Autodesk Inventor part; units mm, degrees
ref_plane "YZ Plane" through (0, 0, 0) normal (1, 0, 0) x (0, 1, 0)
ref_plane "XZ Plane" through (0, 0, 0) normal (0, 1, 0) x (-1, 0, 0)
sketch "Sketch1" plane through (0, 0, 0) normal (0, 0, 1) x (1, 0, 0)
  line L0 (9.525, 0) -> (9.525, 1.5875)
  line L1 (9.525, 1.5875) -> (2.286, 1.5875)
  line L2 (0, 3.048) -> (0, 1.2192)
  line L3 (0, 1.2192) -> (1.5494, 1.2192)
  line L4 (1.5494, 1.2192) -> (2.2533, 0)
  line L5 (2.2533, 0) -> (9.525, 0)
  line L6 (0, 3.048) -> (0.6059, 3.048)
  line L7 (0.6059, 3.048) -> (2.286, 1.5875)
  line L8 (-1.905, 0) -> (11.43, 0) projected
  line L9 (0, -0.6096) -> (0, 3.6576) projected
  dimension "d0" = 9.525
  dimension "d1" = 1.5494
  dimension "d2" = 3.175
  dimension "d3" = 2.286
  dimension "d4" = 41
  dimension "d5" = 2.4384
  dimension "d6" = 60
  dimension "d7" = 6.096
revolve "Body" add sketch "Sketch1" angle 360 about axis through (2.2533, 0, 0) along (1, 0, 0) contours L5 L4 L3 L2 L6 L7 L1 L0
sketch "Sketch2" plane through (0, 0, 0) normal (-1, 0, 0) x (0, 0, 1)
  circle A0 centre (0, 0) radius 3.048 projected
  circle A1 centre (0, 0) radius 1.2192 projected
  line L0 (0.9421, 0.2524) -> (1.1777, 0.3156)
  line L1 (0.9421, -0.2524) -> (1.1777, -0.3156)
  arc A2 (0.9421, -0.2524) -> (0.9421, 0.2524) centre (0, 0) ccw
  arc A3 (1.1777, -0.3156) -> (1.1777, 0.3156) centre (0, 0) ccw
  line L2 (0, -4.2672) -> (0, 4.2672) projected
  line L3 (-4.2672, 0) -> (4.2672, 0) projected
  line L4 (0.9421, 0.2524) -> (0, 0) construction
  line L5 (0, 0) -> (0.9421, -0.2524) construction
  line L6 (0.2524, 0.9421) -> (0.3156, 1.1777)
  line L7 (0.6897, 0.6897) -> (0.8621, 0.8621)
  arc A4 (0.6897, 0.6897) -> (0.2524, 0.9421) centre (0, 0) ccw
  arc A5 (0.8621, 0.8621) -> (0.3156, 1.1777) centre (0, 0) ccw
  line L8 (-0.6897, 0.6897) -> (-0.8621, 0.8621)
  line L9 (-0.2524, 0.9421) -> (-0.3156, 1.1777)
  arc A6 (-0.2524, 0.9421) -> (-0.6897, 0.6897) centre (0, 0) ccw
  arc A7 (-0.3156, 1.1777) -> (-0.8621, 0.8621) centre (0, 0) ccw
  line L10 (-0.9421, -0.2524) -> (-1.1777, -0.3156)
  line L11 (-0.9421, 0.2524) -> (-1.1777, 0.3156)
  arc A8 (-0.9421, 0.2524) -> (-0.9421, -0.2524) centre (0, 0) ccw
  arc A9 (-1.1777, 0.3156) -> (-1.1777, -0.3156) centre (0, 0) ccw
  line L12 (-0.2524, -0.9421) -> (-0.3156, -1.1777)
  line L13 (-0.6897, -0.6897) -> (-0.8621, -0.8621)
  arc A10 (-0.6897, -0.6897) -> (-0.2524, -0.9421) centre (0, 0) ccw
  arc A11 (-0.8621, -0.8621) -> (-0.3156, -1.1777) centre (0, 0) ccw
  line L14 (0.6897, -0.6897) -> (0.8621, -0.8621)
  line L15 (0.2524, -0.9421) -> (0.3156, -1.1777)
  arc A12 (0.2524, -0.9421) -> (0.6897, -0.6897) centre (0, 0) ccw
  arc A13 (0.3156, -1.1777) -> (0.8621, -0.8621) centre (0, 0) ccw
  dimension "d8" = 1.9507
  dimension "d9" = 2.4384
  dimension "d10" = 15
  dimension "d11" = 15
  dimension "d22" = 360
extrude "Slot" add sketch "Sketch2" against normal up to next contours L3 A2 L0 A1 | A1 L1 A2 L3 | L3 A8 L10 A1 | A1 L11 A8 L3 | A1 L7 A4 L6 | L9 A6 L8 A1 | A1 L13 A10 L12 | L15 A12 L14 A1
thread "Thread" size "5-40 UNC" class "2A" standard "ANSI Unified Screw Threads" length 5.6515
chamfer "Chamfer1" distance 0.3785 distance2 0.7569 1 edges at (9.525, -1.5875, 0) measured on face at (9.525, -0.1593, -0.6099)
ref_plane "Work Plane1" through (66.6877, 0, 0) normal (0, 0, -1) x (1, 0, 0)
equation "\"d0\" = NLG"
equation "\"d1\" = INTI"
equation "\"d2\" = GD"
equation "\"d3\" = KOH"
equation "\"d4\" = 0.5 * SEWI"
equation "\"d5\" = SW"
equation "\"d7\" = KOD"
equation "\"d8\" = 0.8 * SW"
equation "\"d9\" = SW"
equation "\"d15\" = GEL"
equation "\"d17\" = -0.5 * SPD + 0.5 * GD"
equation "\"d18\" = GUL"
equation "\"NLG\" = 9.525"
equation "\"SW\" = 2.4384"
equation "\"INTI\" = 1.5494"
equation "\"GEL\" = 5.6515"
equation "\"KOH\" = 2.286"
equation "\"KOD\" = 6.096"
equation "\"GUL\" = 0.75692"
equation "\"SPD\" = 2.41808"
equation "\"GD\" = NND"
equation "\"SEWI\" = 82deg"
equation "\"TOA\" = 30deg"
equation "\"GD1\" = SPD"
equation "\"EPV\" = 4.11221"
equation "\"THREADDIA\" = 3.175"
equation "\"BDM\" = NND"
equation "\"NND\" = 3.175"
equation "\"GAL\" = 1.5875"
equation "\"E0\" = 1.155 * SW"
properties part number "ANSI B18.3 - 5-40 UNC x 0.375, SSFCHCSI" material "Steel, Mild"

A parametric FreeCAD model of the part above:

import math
import FreeCAD as App
import Part
import Sketcher

V = App.Vector
Q = App.Units.Quantity


def edges_at(feature, points):
    """Names of the edges that pass closest to the given points."""
    edges = feature.Shape.Edges
    near = lambda p: min(range(len(edges)), key=lambda i: edges[i].distToShape(Part.Vertex(*p))[0])
    return sorted({f"Edge{near(p) + 1}" for p in points})


def add_polygon(sketch, points):
    """Adds a closed chain of lines whose ends are joined by coincident constraints."""
    first, n = sketch.GeometryCount, len(points)
    for a, b in zip(points, points[1:] + points[:1]):
        sketch.addGeometry(Part.LineSegment(App.Vector(*a, 0), App.Vector(*b, 0)), False)
    for i in range(n):
        sketch.addConstraint(Sketcher.Constraint("Coincident", first + i, 2, first + (i + 1) % n, 1))

doc = App.newDocument("Part")
body = doc.addObject("PartDesign::Body", "Body")

sketch1 = body.newObject("Sketcher::SketchObject", "Sketch")
sketch1.AttachmentSupport = (doc.getObject("XY_Plane"), [""])
sketch1.MapMode = "FlatFace"
add_polygon(sketch1, [(2.3, 0), (9.5, 0), (9.5, 1.6), (2.3, 1.6), (0.6, 3), (0, 3), (0, 1.2), (1.5, 1.2)])
sketch1.addConstraint(Sketcher.Constraint("Horizontal", 0))
sketch1.addConstraint(Sketcher.Constraint("Vertical", 1))
sketch1.addConstraint(Sketcher.Constraint("Horizontal", 2))
sketch1.addConstraint(Sketcher.Constraint("Horizontal", 4))
sketch1.addConstraint(Sketcher.Constraint("Vertical", 5))
sketch1.addConstraint(Sketcher.Constraint("Horizontal", 6))
sketch1.addConstraint(Sketcher.Constraint("PointOnObject", 0, 2, -1))
sketch1.addConstraint(Sketcher.Constraint("PointOnObject", 4, 2, -2))
sketch1.addConstraint(Sketcher.Constraint("Angle", 7, Q("-60.0002 deg")))
sketch1.addConstraint(Sketcher.Constraint("DistanceX", 6, 1, 6, 2, Q("0.061 in")))
sketch1.addConstraint(Sketcher.Constraint("DistanceX", -1, 1, 2, 2, Q("0.09 in")))
sketch1.addConstraint(Sketcher.Constraint("DistanceX", -1, 1, 0, 2, Q("0.375 in")))
sketch1.addConstraint(Sketcher.Constraint("Angle", 3, Q("138.9998 deg")))
sketch1.addConstraint(Sketcher.Constraint("DistanceY", 1, 1, 1, 2, Q("0.0625 in")))
sketch1.addConstraint(Sketcher.Constraint("DistanceY", 5, 2, 5, 1, Q("0.072 in")))
sketch1.addConstraint(Sketcher.Constraint("DistanceY", -1, 1, 3, 2, Q("0.12 in")))
revolution = body.newObject("PartDesign::Revolution", "Revolution")
revolution.Profile = sketch1
revolution.ReferenceAxis = (sketch1, ["H_Axis"])
revolution.Angle = 360

sketch2 = body.newObject("Sketcher::SketchObject", "Sketch001")
sketch2.AttachmentSupport = (doc.getObject("YZ_Plane"), [""])
sketch2.MapMode = "FlatFace"
sketch2.addGeometry(Part.ArcOfCircle(Part.Circle(V(0, 0, 0), V(0, 0, 1), 0.98), math.radians(75), math.radians(105)), False)
sketch2.addGeometry(Part.LineSegment(V(-0.25, 0.94, 0), V(-0.32, 1.18, 0)), False)
sketch2.addGeometry(Part.ArcOfCircle(Part.Circle(V(0, 0, 0), V(0, 0, 1), 1.22), math.radians(75), math.radians(105)), False)
sketch2.addGeometry(Part.LineSegment(V(0.32, 1.18, 0), V(0.25, 0.94, 0)), False)
sketch2.addGeometry(Part.ArcOfCircle(Part.Circle(V(0, 0, 0), V(0, 0, 1), 0.98), math.radians(-105), math.radians(-75)), False)
sketch2.addGeometry(Part.LineSegment(V(0.25, -0.94, 0), V(0.32, -1.18, 0)), False)
sketch2.addGeometry(Part.ArcOfCircle(Part.Circle(V(0, 0, 0), V(0, 0, 1), 1.22), math.radians(-105), math.radians(-75)), False)
sketch2.addGeometry(Part.LineSegment(V(-0.32, -1.18, 0), V(-0.25, -0.94, 0)), False)
sketch2.addGeometry(Part.ArcOfCircle(Part.Circle(V(0, 0, 0), V(0, 0, 1), 1.22), math.radians(15), math.radians(45)), False)
sketch2.addGeometry(Part.LineSegment(V(1.18, 0.32, 0), V(0.94, 0.25, 0)), False)
sketch2.addGeometry(Part.ArcOfCircle(Part.Circle(V(0, 0, 0), V(0, 0, 1), 0.98), math.radians(15), math.radians(45)), False)
sketch2.addGeometry(Part.LineSegment(V(0.69, 0.69, 0), V(0.86, 0.86, 0)), False)
sketch2.addGeometry(Part.LineSegment(V(0.94, -0.25, 0), V(1.18, -0.32, 0)), False)
sketch2.addGeometry(Part.ArcOfCircle(Part.Circle(V(0, 0, 0), V(0, 0, 1), 1.22), math.radians(-45), math.radians(-15)), False)
sketch2.addGeometry(Part.LineSegment(V(0.86, -0.86, 0), V(0.69, -0.69, 0)), False)
sketch2.addGeometry(Part.ArcOfCircle(Part.Circle(V(0, 0, 0), V(0, 0, 1), 0.98), math.radians(-45), math.radians(-15)), False)
sketch2.addGeometry(Part.ArcOfCircle(Part.Circle(V(0, 0, 0), V(0, 0, 1), 1.22), math.radians(-165), math.radians(-135)), False)
sketch2.addGeometry(Part.LineSegment(V(-1.18, -0.32, 0), V(-0.94, -0.25, 0)), False)
sketch2.addGeometry(Part.ArcOfCircle(Part.Circle(V(0, 0, 0), V(0, 0, 1), 0.98), math.radians(-165), math.radians(-135)), False)
sketch2.addGeometry(Part.LineSegment(V(-0.69, -0.69, 0), V(-0.86, -0.86, 0)), False)
sketch2.addGeometry(Part.LineSegment(V(-0.94, 0.25, 0), V(-1.18, 0.32, 0)), False)
sketch2.addGeometry(Part.ArcOfCircle(Part.Circle(V(0, 0, 0), V(0, 0, 1), 1.22), math.radians(135), math.radians(165)), False)
sketch2.addGeometry(Part.LineSegment(V(-0.86, 0.86, 0), V(-0.69, 0.69, 0)), False)
sketch2.addGeometry(Part.ArcOfCircle(Part.Circle(V(0, 0, 0), V(0, 0, 1), 0.98), math.radians(135), math.radians(165)), False)
sketch2.addConstraint(Sketcher.Constraint("Coincident", 0, 2, 1, 1))
sketch2.addConstraint(Sketcher.Constraint("Coincident", 1, 2, 2, 2))
sketch2.addConstraint(Sketcher.Constraint("Coincident", 2, 1, 3, 1))
sketch2.addConstraint(Sketcher.Constraint("Coincident", 3, 2, 0, 1))
sketch2.addConstraint(Sketcher.Constraint("Coincident", 4, 2, 5, 1))
sketch2.addConstraint(Sketcher.Constraint("Coincident", 5, 2, 6, 2))
sketch2.addConstraint(Sketcher.Constraint("Coincident", 6, 1, 7, 1))
sketch2.addConstraint(Sketcher.Constraint("Coincident", 7, 2, 4, 1))
sketch2.addConstraint(Sketcher.Constraint("Coincident", 8, 1, 9, 1))
sketch2.addConstraint(Sketcher.Constraint("Coincident", 9, 2, 10, 1))
sketch2.addConstraint(Sketcher.Constraint("Coincident", 10, 2, 11, 1))
sketch2.addConstraint(Sketcher.Constraint("Coincident", 11, 2, 8, 2))
sketch2.addConstraint(Sketcher.Constraint("Coincident", 12, 2, 13, 2))
sketch2.addConstraint(Sketcher.Constraint("Coincident", 13, 1, 14, 1))
sketch2.addConstraint(Sketcher.Constraint("Coincident", 14, 2, 15, 1))
sketch2.addConstraint(Sketcher.Constraint("Coincident", 15, 2, 12, 1))
sketch2.addConstraint(Sketcher.Constraint("Coincident", 16, 1, 17, 1))
sketch2.addConstraint(Sketcher.Constraint("Coincident", 17, 2, 18, 1))
sketch2.addConstraint(Sketcher.Constraint("Coincident", 18, 2, 19, 1))
sketch2.addConstraint(Sketcher.Constraint("Coincident", 19, 2, 16, 2))
sketch2.addConstraint(Sketcher.Constraint("Coincident", 20, 2, 21, 2))
sketch2.addConstraint(Sketcher.Constraint("Coincident", 21, 1, 22, 1))
sketch2.addConstraint(Sketcher.Constraint("Coincident", 22, 2, 23, 1))
sketch2.addConstraint(Sketcher.Constraint("Coincident", 23, 2, 20, 1))
sketch2.addConstraint(Sketcher.Constraint("Coincident", 0, 3, -1, 1))
sketch2.addConstraint(Sketcher.Constraint("Coincident", 2, 3, -1, 1))
sketch2.addConstraint(Sketcher.Constraint("Coincident", 4, 3, -1, 1))
sketch2.addConstraint(Sketcher.Constraint("Coincident", 6, 3, -1, 1))
sketch2.addConstraint(Sketcher.Constraint("Coincident", 8, 3, -1, 1))
sketch2.addConstraint(Sketcher.Constraint("Coincident", 10, 3, -1, 1))
sketch2.addConstraint(Sketcher.Constraint("Coincident", 13, 3, -1, 1))
sketch2.addConstraint(Sketcher.Constraint("Coincident", 15, 3, -1, 1))
sketch2.addConstraint(Sketcher.Constraint("Coincident", 16, 3, -1, 1))
sketch2.addConstraint(Sketcher.Constraint("Coincident", 18, 3, -1, 1))
sketch2.addConstraint(Sketcher.Constraint("Coincident", 21, 3, -1, 1))
sketch2.addConstraint(Sketcher.Constraint("Coincident", 23, 3, -1, 1))
sketch2.addConstraint(Sketcher.Constraint("Equal", 0, 4))
sketch2.addConstraint(Sketcher.Constraint("Equal", 2, 6))
sketch2.addConstraint(Sketcher.Constraint("Equal", 6, 8))
sketch2.addConstraint(Sketcher.Constraint("Equal", 4, 10))
sketch2.addConstraint(Sketcher.Constraint("Equal", 8, 13))
sketch2.addConstraint(Sketcher.Constraint("Equal", 10, 15))
sketch2.addConstraint(Sketcher.Constraint("Equal", 13, 16))
sketch2.addConstraint(Sketcher.Constraint("Equal", 15, 18))
sketch2.addConstraint(Sketcher.Constraint("Equal", 16, 21))
sketch2.addConstraint(Sketcher.Constraint("Equal", 18, 23))
sketch2.addConstraint(Sketcher.Constraint("Parallel", 1, 5))
sketch2.addConstraint(Sketcher.Constraint("Parallel", 3, 7))
sketch2.addConstraint(Sketcher.Constraint("Perpendicular", 5, 9))
sketch2.addConstraint(Sketcher.Constraint("Perpendicular", 7, 12))
sketch2.addConstraint(Sketcher.Constraint("Perpendicular", 11, 14))
sketch2.addConstraint(Sketcher.Constraint("Parallel", 9, 17))
sketch2.addConstraint(Sketcher.Constraint("Perpendicular", 14, 19))
sketch2.addConstraint(Sketcher.Constraint("Parallel", 12, 20))
sketch2.addConstraint(Sketcher.Constraint("Perpendicular", 19, 22))
sketch2.addConstraint(Sketcher.Constraint("Horizontal", 1, 2, 2, 1))
sketch2.addConstraint(Sketcher.Constraint("Horizontal", 0, 2, 3, 2))
sketch2.addConstraint(Sketcher.Constraint("Horizontal", 5, 2, 6, 1))
sketch2.addConstraint(Sketcher.Constraint("Horizontal", 12, 2, 16, 1))
sketch2.addConstraint(Sketcher.Constraint("Horizontal", 14, 2, 18, 2))
sketch2.addConstraint(Sketcher.Constraint("Horizontal", 13, 1, 19, 2))
sketch2.addConstraint(Sketcher.Constraint("Horizontal", 8, 1, 20, 2))
sketch2.addConstraint(Sketcher.Constraint("Horizontal", 11, 2, 21, 1))
sketch2.addConstraint(Sketcher.Constraint("Vertical", 3, 2, 4, 2))
sketch2.addConstraint(Sketcher.Constraint("Vertical", 8, 1, 12, 2))
sketch2.addConstraint(Sketcher.Constraint("Vertical", 11, 2, 13, 1))
sketch2.addConstraint(Sketcher.Constraint("Radius", 2, Q("0.048 in")))
sketch2.addConstraint(Sketcher.Constraint("Radius", 0, Q("0.0384 in")))
sketch2.addConstraint(Sketcher.Constraint("DistanceX", 3, 2, 11, 2, Q("0.024 in")))
sketch2.addConstraint(Sketcher.Constraint("DistanceY", 9, 2, 11, 2, Q("0.024 in")))
sketch2.addConstraint(Sketcher.Constraint("DistanceY", -1, 1, 0, 2, Q("0.0371 in")))
sketch2.addConstraint(Sketcher.Constraint("DistanceX", 1, 2, 0, 2, Q("0.0025 in")))
pad1 = body.newObject("PartDesign::Pad", "Pad")
pad1.Profile = sketch2
pad1.Type = "UpToFirst"
doc.recompute()

chamfer = body.newObject("PartDesign::Chamfer", "Chamfer")
chamfer.Base = (pad1, edges_at(pad1, [(9.525, -1.587, 0)]))
chamfer.ChamferType = "Two distances"
chamfer.Size = Q("0.0149016 in")
chamfer.Size2 = Q("0.0297992 in")

doc.recompute()
